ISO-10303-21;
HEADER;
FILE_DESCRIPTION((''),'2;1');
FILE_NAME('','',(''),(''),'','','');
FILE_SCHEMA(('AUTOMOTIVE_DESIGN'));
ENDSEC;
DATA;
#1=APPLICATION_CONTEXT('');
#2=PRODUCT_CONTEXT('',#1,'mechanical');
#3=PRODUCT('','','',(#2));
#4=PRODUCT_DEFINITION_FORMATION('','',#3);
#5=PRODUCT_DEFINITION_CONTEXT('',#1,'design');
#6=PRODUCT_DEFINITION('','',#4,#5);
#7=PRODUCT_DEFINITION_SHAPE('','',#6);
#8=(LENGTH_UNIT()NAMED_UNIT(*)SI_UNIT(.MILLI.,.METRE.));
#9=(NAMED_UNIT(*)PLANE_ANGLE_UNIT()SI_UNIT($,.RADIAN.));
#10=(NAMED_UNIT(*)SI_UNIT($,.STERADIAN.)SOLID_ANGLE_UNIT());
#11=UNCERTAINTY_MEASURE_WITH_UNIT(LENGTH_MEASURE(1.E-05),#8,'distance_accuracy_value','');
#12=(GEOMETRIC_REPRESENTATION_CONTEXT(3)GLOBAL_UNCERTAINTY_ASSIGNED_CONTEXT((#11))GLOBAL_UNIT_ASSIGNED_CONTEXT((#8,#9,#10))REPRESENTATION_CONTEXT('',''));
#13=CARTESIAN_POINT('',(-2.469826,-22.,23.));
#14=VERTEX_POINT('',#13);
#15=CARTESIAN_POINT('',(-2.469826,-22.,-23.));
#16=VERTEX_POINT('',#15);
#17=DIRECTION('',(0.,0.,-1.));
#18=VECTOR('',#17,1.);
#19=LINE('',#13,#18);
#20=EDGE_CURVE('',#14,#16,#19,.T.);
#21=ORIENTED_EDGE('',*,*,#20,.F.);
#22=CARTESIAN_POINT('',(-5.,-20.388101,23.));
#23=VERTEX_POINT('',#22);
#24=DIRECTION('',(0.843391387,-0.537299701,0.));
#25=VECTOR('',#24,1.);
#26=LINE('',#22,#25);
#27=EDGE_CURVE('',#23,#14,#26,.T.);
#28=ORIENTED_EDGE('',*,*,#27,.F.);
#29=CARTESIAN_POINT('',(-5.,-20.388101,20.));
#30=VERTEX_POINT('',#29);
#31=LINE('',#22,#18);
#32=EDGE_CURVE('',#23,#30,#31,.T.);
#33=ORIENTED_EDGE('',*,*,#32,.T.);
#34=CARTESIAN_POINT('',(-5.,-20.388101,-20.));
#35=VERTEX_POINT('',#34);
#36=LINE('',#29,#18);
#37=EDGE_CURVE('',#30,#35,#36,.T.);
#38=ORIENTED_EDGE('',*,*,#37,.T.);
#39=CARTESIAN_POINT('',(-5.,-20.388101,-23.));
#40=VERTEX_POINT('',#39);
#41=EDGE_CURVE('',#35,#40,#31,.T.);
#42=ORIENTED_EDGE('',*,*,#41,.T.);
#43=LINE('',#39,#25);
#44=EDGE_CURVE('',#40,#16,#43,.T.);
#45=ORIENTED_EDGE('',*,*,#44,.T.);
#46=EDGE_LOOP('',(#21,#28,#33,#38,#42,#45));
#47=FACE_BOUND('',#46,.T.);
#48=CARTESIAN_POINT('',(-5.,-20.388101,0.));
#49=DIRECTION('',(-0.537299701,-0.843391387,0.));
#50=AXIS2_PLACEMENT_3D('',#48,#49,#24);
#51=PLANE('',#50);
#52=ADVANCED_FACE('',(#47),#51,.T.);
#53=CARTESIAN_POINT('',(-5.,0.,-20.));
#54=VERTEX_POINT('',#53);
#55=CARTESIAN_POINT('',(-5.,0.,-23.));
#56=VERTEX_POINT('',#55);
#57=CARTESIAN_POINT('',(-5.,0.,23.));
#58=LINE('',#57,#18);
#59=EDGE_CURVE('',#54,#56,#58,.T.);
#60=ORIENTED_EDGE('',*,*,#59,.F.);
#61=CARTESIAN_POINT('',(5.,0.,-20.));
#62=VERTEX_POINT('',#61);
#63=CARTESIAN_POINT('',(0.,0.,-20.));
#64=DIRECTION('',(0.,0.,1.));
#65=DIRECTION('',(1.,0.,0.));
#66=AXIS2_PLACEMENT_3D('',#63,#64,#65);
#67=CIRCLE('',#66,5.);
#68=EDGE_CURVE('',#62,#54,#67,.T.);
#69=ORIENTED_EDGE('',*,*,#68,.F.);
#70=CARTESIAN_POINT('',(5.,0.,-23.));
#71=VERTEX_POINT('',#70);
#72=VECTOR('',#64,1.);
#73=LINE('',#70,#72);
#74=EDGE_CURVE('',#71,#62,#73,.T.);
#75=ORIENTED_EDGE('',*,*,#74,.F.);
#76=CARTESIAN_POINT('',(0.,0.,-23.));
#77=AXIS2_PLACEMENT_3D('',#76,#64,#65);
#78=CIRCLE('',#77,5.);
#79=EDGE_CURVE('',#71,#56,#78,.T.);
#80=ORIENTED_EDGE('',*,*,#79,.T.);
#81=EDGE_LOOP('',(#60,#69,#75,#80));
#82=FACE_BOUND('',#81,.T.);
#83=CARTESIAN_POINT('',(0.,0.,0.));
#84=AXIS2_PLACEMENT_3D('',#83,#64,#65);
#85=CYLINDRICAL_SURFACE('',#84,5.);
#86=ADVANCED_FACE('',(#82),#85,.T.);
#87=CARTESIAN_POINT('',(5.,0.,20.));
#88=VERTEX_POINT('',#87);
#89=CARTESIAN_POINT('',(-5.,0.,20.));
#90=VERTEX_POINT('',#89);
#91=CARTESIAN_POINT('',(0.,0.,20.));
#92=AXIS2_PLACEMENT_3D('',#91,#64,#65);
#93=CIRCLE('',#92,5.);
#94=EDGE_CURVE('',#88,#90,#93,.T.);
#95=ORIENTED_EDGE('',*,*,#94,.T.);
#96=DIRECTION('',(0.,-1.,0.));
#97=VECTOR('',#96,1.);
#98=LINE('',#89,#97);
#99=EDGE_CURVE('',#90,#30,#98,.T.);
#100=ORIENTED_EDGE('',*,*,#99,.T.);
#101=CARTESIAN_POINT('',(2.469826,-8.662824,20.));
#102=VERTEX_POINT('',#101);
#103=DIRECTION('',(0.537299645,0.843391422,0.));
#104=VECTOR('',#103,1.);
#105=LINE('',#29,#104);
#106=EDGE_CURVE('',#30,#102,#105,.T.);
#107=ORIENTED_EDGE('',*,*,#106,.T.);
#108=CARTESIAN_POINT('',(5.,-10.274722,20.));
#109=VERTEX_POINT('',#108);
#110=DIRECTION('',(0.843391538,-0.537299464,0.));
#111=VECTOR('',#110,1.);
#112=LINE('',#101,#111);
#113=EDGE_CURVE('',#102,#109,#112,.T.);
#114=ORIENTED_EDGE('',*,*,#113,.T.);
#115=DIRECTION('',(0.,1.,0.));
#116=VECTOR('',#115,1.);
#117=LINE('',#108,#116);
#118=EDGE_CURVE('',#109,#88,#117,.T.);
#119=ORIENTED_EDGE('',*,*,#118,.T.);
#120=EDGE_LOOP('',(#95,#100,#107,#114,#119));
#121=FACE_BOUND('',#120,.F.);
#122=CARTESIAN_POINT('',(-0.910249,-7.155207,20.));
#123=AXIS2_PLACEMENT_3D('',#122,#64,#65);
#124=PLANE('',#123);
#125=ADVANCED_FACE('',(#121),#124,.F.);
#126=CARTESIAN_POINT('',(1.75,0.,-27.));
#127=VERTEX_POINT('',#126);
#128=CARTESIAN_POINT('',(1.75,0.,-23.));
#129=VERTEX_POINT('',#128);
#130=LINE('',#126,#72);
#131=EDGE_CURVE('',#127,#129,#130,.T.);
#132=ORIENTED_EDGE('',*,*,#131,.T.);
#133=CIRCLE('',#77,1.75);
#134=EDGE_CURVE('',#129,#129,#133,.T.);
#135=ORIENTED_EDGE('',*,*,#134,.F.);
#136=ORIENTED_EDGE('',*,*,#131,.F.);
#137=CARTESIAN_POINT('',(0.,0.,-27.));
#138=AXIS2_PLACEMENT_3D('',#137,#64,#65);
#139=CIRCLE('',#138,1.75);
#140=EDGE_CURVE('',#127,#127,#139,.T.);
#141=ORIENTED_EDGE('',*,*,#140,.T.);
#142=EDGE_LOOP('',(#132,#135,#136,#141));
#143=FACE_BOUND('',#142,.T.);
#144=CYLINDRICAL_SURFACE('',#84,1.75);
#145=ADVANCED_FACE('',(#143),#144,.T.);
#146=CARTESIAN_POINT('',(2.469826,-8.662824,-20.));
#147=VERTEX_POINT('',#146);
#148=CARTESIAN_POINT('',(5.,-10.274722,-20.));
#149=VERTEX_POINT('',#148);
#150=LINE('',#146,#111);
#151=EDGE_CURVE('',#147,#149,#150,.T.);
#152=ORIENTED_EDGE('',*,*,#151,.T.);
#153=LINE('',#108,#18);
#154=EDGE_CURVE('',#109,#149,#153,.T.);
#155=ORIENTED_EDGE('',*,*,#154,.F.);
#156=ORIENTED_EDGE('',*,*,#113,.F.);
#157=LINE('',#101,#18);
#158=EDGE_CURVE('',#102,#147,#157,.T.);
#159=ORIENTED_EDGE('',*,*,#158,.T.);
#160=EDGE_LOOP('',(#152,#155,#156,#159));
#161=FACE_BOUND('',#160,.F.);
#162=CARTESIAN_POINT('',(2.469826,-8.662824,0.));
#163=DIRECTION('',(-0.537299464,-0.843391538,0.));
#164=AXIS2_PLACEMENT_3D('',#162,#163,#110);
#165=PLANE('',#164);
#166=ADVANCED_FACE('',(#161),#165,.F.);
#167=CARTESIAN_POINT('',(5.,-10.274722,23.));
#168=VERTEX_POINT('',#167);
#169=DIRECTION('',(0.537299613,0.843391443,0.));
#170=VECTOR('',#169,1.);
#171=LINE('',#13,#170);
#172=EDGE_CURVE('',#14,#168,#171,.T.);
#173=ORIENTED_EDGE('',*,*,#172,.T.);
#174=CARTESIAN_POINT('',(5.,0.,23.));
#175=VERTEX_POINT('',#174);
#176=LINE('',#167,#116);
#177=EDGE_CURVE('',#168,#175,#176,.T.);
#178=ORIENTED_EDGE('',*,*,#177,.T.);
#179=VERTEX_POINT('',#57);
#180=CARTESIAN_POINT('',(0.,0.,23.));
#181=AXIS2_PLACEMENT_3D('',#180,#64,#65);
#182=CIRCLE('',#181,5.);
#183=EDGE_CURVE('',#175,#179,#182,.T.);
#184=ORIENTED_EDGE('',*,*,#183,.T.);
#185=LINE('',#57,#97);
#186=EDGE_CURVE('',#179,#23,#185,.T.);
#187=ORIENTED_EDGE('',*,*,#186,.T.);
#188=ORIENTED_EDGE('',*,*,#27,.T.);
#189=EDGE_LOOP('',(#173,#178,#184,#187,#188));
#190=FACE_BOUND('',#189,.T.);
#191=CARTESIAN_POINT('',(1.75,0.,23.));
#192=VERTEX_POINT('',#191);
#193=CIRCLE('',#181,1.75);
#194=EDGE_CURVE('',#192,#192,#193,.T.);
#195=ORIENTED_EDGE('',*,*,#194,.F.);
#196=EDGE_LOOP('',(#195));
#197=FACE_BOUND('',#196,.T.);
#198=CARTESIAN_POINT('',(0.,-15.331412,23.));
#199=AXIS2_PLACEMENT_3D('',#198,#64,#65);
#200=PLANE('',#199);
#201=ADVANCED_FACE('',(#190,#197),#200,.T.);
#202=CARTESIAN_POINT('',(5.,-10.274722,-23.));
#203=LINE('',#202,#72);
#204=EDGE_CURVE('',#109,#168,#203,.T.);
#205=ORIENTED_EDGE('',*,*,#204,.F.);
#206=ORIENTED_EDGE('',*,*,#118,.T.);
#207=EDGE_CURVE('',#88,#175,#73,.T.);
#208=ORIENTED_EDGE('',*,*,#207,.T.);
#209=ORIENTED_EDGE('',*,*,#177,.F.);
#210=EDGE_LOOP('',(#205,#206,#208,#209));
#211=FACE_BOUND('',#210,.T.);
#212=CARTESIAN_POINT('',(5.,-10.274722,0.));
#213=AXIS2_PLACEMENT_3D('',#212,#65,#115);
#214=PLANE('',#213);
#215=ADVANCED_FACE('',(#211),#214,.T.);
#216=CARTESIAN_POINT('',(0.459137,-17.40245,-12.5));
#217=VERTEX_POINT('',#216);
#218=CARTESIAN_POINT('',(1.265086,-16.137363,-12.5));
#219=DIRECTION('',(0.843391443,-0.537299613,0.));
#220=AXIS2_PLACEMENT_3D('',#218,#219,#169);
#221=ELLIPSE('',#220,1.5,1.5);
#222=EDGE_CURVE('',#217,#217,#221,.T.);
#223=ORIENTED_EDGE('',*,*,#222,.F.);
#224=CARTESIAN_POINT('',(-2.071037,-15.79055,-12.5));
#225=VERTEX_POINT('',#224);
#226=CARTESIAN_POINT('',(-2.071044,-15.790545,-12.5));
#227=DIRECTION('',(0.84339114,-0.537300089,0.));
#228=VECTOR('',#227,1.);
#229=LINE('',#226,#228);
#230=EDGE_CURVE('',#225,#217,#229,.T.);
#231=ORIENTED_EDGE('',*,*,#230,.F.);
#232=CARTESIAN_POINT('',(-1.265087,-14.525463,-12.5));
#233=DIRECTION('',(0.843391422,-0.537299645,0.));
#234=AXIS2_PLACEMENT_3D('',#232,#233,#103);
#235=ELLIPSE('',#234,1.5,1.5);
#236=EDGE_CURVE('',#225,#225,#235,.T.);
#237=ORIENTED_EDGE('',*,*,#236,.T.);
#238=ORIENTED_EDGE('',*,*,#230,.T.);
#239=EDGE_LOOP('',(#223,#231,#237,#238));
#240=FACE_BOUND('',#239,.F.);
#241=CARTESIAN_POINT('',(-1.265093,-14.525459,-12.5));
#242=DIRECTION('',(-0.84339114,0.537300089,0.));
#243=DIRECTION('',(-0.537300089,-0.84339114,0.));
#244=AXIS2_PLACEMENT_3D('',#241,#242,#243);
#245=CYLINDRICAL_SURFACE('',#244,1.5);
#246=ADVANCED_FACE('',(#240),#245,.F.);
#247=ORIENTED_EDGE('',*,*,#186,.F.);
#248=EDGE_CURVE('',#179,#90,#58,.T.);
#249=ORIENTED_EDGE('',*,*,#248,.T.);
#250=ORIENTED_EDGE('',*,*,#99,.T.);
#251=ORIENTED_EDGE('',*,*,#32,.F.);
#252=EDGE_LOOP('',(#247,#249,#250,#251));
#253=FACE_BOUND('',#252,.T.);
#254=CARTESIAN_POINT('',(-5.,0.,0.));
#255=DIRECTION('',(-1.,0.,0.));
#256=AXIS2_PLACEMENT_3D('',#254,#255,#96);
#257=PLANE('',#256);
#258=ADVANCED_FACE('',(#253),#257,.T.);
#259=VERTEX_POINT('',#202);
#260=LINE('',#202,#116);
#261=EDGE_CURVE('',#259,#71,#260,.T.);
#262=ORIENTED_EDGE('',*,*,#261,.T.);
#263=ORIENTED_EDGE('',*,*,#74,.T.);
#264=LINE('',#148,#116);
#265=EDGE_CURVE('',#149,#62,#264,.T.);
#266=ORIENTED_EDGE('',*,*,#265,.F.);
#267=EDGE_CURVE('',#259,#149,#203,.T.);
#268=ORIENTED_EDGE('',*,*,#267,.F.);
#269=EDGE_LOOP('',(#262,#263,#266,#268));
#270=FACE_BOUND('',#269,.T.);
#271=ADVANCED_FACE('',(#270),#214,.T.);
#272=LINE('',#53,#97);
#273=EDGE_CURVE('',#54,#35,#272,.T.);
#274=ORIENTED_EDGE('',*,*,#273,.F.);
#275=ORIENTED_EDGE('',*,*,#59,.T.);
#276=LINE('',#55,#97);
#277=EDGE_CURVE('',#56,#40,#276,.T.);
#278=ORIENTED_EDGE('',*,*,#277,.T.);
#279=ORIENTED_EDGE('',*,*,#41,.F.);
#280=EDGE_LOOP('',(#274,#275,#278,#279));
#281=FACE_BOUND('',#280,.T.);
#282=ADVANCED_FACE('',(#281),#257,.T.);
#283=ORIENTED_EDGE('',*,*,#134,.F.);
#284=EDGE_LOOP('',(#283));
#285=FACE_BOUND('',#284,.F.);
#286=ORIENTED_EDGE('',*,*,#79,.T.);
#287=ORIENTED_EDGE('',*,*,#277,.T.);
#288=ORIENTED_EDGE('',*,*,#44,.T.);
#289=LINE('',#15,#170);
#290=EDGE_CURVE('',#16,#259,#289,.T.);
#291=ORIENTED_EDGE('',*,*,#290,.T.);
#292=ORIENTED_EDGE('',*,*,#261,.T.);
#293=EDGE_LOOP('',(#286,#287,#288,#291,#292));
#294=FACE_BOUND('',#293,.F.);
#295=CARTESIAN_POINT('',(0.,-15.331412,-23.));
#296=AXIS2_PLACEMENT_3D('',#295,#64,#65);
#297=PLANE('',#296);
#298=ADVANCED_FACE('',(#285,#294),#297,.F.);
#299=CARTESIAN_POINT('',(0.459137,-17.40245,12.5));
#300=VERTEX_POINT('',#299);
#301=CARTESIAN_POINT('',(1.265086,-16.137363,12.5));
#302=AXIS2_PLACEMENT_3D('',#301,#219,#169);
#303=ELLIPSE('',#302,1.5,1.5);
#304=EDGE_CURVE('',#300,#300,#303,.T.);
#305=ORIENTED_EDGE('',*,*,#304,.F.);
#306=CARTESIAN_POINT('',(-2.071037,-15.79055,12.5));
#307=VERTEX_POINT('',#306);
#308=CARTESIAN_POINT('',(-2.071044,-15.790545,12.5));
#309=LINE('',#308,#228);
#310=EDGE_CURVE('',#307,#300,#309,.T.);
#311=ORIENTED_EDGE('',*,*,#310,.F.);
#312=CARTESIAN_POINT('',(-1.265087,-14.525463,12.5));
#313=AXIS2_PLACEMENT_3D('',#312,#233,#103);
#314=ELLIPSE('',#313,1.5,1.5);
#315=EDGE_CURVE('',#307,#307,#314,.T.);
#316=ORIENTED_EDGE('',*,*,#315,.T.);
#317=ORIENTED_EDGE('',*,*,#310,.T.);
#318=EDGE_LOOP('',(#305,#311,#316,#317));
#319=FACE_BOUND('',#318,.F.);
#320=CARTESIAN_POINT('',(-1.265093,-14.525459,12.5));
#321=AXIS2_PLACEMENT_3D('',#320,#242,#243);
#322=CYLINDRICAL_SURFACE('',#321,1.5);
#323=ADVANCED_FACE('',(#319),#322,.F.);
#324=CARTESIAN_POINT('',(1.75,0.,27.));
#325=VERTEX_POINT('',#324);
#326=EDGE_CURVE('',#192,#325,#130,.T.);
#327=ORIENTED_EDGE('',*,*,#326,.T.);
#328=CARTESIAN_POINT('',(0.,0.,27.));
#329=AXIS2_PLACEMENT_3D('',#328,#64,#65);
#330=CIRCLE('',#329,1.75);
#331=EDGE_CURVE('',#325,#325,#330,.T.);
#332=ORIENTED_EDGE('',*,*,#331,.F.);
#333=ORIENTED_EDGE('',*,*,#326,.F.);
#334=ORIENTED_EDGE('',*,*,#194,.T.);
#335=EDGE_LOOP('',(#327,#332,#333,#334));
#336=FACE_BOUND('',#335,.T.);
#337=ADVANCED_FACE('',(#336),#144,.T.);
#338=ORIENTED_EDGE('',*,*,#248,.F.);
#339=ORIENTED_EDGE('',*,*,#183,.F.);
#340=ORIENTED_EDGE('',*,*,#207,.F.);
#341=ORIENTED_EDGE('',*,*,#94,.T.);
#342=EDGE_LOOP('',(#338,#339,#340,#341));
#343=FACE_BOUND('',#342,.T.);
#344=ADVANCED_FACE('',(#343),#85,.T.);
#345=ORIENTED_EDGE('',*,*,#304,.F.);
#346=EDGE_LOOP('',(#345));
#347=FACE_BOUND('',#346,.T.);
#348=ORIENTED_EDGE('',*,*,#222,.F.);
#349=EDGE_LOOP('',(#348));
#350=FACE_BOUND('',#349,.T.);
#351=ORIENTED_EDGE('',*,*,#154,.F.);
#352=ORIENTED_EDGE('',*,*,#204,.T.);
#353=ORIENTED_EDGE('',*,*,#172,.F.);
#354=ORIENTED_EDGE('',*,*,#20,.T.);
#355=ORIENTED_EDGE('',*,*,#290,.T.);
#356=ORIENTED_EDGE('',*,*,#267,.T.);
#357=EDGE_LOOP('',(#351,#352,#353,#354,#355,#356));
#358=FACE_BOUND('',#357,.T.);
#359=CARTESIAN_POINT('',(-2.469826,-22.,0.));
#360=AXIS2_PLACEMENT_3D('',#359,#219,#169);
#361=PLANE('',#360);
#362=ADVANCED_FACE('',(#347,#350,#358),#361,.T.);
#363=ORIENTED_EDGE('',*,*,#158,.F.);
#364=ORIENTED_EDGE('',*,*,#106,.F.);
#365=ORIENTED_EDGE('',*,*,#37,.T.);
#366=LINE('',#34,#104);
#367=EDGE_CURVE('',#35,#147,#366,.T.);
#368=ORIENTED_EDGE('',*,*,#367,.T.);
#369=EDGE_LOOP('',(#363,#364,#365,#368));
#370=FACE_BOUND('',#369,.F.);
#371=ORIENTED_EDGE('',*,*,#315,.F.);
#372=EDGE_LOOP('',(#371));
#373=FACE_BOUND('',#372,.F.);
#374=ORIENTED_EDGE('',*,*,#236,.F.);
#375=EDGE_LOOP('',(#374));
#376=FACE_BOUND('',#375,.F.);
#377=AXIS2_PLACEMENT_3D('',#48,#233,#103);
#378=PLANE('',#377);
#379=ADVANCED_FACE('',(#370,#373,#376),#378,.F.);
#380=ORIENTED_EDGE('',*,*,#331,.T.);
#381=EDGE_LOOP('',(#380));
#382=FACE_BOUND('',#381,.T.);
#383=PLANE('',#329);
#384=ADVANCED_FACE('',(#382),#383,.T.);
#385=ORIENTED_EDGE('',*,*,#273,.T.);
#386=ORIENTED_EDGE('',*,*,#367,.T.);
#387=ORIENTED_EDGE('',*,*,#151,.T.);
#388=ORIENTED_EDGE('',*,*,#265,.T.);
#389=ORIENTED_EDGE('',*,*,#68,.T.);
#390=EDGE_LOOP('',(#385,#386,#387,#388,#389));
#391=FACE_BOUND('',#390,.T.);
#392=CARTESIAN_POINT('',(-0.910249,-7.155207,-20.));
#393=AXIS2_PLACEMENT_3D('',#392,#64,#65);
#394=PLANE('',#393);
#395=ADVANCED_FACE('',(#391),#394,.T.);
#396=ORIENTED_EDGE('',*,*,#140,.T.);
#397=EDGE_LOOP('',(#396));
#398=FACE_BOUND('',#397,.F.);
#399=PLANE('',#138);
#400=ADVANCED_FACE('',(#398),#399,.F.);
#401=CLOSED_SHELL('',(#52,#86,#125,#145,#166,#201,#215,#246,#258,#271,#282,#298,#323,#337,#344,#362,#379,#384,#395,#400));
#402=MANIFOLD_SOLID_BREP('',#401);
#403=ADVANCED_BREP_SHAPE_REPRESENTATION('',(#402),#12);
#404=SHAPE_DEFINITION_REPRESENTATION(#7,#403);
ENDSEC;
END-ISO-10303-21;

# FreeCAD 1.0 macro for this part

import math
import FreeCAD as App
import Part
import Sketcher

V = App.Vector
Q = App.Units.Quantity

doc = App.newDocument("Part")
body = doc.addObject("PartDesign::Body", "Body")

sketch1 = body.newObject("Sketcher::SketchObject", "Sketch")
sketch1.AttachmentSupport = (doc.getObject("XY_Plane"), [""])
sketch1.MapMode = "FlatFace"
sketch1.addGeometry(Part.LineSegment(V(-2.5, -22, 0), V(5, -10.3, 0)), False)
sketch1.addGeometry(Part.LineSegment(V(5, -10.3, 0), V(5, 0, 0)), False)
sketch1.addGeometry(Part.ArcOfCircle(Part.Circle(V(0, 0, 0), V(0, 0, 1), 5), math.radians(0), math.radians(180)), False)
sketch1.addGeometry(Part.LineSegment(V(-5, 0, 0), V(-5, -20.4, 0)), False)
sketch1.addGeometry(Part.LineSegment(V(-5, -20.4, 0), V(-2.5, -22, 0)), False)
sketch1.addGeometry(Part.Circle(V(0, 0, 0), V(0, 0, 1), 1.8), False)
sketch1.addConstraint(Sketcher.Constraint("Coincident", 0, 2, 1, 1))
sketch1.addConstraint(Sketcher.Constraint("Tangent", 1, 2, 2, 1))
sketch1.addConstraint(Sketcher.Constraint("Tangent", 2, 2, 3, 1))
sketch1.addConstraint(Sketcher.Constraint("Coincident", 3, 2, 4, 1))
sketch1.addConstraint(Sketcher.Constraint("Coincident", 4, 2, 0, 1))
sketch1.addConstraint(Sketcher.Constraint("Vertical", 1))
sketch1.addConstraint(Sketcher.Constraint("Vertical", 3))
sketch1.addConstraint(Sketcher.Constraint("Coincident", 2, 3, -1, 1))
sketch1.addConstraint(Sketcher.Constraint("Coincident", 5, 3, -1, 1))
sketch1.addConstraint(Sketcher.Constraint("Perpendicular", 0, 4))
sketch1.addConstraint(Sketcher.Constraint("Radius", 2, 5.0))
sketch1.addConstraint(Sketcher.Constraint("Diameter", 5, 3.5))
sketch1.addConstraint(Sketcher.Constraint("Distance", 4, 3.0))
sketch1.addConstraint(Sketcher.Constraint("DistanceY", 4, 2, -1, 1, 22.0))
sketch1.addConstraint(Sketcher.Constraint("Angle", 0, Q("57.5 deg")))
pad1 = body.newObject("PartDesign::Pad", "Pad")
pad1.Profile = sketch1
pad1.Length = 46
pad1.Midplane = True

sketch2 = body.newObject("Sketcher::SketchObject", "Sketch001")
sketch2.AttachmentSupport = (doc.getObject("XY_Plane"), [""])
sketch2.MapMode = "FlatFace"
sketch2.addGeometry(Part.Circle(V(0, 0, 0), V(0, 0, 1), 1.8), False)
sketch2.addConstraint(Sketcher.Constraint("Coincident", 0, 3, -1, 1))
sketch2.addConstraint(Sketcher.Constraint("Diameter", 0, 3.5))
pad2 = body.newObject("PartDesign::Pad", "Pad001")
pad2.Profile = sketch2
pad2.Length = 54
pad2.Midplane = True

sketch3 = body.newObject("Sketcher::SketchObject", "Sketch002")
sketch3.AttachmentSupport = (doc.getObject("XY_Plane"), [""])
sketch3.MapMode = "FlatFace"
sketch3.addGeometry(Part.LineSegment(V(5, -10.3, 0), V(5, 0, 0)), False)
sketch3.addGeometry(Part.ArcOfCircle(Part.Circle(V(0, 0, 0), V(0, 0, 1), 5), math.radians(0), math.radians(180)), False)
sketch3.addGeometry(Part.LineSegment(V(-5, 0, 0), V(-5, -20.4, 0)), False)
sketch3.addGeometry(Part.LineSegment(V(-5, -20.4, 0), V(2.5, -8.7, 0)), False)
sketch3.addGeometry(Part.LineSegment(V(2.5, -8.7, 0), V(5, -10.3, 0)), False)
sketch3.addConstraint(Sketcher.Constraint("Tangent", 0, 2, 1, 1))
sketch3.addConstraint(Sketcher.Constraint("Tangent", 1, 2, 2, 1))
sketch3.addConstraint(Sketcher.Constraint("Coincident", 2, 2, 3, 1))
sketch3.addConstraint(Sketcher.Constraint("Coincident", 3, 2, 4, 1))
sketch3.addConstraint(Sketcher.Constraint("Coincident", 4, 2, 0, 1))
sketch3.addConstraint(Sketcher.Constraint("Vertical", 0))
sketch3.addConstraint(Sketcher.Constraint("Vertical", 2))
sketch3.addConstraint(Sketcher.Constraint("Coincident", 1, 3, -1, 1))
sketch3.addConstraint(Sketcher.Constraint("Perpendicular", 3, 4))
sketch3.addConstraint(Sketcher.Constraint("Radius", 1, 5.0))
sketch3.addConstraint(Sketcher.Constraint("Distance", 4, 2.999999))
sketch3.addConstraint(Sketcher.Constraint("Angle", 3, Q("57.499997 deg")))
sketch3.addConstraint(Sketcher.Constraint("DistanceY", 2, 2, 2, 1, 20.388101))
pocket1 = body.newObject("PartDesign::Pocket", "Pocket")
pocket1.Profile = sketch3
pocket1.Length = 40
pocket1.Midplane = True

sketch4 = body.newObject("Sketcher::SketchObject", "Sketch003")
sketch4.Placement = App.Placement(V(5.682402, -3.620089, 0), App.Rotation(V(-0.537300089, -0.84339114, 0), V(0, 0, 1.000000001), V(-0.84339114, 0.537300089, 0), "ZXY"))
sketch4.addGeometry(Part.Circle(V(12.9, -12.5, 0), V(0, 0, 1), 1.5), False)
sketch4.addGeometry(Part.Circle(V(12.9, 12.5, 0), V(0, 0, 1), 1.5), False)
sketch4.addConstraint(Sketcher.Constraint("Equal", 0, 1))
sketch4.addConstraint(Sketcher.Constraint("Symmetric", 0, 3, 1, 3, -1))
sketch4.addConstraint(Sketcher.Constraint("Diameter", 0, 3.0))
sketch4.addConstraint(Sketcher.Constraint("DistanceY", 0, 3, 1, 3, 25.0))
sketch4.addConstraint(Sketcher.Constraint("DistanceX", -1, 1, 0, 3, 12.930382))
pocket2 = body.newObject("PartDesign::Pocket", "Pocket001")
pocket2.Profile = sketch4
pocket2.Type = "ThroughAll"

doc.recompute()
